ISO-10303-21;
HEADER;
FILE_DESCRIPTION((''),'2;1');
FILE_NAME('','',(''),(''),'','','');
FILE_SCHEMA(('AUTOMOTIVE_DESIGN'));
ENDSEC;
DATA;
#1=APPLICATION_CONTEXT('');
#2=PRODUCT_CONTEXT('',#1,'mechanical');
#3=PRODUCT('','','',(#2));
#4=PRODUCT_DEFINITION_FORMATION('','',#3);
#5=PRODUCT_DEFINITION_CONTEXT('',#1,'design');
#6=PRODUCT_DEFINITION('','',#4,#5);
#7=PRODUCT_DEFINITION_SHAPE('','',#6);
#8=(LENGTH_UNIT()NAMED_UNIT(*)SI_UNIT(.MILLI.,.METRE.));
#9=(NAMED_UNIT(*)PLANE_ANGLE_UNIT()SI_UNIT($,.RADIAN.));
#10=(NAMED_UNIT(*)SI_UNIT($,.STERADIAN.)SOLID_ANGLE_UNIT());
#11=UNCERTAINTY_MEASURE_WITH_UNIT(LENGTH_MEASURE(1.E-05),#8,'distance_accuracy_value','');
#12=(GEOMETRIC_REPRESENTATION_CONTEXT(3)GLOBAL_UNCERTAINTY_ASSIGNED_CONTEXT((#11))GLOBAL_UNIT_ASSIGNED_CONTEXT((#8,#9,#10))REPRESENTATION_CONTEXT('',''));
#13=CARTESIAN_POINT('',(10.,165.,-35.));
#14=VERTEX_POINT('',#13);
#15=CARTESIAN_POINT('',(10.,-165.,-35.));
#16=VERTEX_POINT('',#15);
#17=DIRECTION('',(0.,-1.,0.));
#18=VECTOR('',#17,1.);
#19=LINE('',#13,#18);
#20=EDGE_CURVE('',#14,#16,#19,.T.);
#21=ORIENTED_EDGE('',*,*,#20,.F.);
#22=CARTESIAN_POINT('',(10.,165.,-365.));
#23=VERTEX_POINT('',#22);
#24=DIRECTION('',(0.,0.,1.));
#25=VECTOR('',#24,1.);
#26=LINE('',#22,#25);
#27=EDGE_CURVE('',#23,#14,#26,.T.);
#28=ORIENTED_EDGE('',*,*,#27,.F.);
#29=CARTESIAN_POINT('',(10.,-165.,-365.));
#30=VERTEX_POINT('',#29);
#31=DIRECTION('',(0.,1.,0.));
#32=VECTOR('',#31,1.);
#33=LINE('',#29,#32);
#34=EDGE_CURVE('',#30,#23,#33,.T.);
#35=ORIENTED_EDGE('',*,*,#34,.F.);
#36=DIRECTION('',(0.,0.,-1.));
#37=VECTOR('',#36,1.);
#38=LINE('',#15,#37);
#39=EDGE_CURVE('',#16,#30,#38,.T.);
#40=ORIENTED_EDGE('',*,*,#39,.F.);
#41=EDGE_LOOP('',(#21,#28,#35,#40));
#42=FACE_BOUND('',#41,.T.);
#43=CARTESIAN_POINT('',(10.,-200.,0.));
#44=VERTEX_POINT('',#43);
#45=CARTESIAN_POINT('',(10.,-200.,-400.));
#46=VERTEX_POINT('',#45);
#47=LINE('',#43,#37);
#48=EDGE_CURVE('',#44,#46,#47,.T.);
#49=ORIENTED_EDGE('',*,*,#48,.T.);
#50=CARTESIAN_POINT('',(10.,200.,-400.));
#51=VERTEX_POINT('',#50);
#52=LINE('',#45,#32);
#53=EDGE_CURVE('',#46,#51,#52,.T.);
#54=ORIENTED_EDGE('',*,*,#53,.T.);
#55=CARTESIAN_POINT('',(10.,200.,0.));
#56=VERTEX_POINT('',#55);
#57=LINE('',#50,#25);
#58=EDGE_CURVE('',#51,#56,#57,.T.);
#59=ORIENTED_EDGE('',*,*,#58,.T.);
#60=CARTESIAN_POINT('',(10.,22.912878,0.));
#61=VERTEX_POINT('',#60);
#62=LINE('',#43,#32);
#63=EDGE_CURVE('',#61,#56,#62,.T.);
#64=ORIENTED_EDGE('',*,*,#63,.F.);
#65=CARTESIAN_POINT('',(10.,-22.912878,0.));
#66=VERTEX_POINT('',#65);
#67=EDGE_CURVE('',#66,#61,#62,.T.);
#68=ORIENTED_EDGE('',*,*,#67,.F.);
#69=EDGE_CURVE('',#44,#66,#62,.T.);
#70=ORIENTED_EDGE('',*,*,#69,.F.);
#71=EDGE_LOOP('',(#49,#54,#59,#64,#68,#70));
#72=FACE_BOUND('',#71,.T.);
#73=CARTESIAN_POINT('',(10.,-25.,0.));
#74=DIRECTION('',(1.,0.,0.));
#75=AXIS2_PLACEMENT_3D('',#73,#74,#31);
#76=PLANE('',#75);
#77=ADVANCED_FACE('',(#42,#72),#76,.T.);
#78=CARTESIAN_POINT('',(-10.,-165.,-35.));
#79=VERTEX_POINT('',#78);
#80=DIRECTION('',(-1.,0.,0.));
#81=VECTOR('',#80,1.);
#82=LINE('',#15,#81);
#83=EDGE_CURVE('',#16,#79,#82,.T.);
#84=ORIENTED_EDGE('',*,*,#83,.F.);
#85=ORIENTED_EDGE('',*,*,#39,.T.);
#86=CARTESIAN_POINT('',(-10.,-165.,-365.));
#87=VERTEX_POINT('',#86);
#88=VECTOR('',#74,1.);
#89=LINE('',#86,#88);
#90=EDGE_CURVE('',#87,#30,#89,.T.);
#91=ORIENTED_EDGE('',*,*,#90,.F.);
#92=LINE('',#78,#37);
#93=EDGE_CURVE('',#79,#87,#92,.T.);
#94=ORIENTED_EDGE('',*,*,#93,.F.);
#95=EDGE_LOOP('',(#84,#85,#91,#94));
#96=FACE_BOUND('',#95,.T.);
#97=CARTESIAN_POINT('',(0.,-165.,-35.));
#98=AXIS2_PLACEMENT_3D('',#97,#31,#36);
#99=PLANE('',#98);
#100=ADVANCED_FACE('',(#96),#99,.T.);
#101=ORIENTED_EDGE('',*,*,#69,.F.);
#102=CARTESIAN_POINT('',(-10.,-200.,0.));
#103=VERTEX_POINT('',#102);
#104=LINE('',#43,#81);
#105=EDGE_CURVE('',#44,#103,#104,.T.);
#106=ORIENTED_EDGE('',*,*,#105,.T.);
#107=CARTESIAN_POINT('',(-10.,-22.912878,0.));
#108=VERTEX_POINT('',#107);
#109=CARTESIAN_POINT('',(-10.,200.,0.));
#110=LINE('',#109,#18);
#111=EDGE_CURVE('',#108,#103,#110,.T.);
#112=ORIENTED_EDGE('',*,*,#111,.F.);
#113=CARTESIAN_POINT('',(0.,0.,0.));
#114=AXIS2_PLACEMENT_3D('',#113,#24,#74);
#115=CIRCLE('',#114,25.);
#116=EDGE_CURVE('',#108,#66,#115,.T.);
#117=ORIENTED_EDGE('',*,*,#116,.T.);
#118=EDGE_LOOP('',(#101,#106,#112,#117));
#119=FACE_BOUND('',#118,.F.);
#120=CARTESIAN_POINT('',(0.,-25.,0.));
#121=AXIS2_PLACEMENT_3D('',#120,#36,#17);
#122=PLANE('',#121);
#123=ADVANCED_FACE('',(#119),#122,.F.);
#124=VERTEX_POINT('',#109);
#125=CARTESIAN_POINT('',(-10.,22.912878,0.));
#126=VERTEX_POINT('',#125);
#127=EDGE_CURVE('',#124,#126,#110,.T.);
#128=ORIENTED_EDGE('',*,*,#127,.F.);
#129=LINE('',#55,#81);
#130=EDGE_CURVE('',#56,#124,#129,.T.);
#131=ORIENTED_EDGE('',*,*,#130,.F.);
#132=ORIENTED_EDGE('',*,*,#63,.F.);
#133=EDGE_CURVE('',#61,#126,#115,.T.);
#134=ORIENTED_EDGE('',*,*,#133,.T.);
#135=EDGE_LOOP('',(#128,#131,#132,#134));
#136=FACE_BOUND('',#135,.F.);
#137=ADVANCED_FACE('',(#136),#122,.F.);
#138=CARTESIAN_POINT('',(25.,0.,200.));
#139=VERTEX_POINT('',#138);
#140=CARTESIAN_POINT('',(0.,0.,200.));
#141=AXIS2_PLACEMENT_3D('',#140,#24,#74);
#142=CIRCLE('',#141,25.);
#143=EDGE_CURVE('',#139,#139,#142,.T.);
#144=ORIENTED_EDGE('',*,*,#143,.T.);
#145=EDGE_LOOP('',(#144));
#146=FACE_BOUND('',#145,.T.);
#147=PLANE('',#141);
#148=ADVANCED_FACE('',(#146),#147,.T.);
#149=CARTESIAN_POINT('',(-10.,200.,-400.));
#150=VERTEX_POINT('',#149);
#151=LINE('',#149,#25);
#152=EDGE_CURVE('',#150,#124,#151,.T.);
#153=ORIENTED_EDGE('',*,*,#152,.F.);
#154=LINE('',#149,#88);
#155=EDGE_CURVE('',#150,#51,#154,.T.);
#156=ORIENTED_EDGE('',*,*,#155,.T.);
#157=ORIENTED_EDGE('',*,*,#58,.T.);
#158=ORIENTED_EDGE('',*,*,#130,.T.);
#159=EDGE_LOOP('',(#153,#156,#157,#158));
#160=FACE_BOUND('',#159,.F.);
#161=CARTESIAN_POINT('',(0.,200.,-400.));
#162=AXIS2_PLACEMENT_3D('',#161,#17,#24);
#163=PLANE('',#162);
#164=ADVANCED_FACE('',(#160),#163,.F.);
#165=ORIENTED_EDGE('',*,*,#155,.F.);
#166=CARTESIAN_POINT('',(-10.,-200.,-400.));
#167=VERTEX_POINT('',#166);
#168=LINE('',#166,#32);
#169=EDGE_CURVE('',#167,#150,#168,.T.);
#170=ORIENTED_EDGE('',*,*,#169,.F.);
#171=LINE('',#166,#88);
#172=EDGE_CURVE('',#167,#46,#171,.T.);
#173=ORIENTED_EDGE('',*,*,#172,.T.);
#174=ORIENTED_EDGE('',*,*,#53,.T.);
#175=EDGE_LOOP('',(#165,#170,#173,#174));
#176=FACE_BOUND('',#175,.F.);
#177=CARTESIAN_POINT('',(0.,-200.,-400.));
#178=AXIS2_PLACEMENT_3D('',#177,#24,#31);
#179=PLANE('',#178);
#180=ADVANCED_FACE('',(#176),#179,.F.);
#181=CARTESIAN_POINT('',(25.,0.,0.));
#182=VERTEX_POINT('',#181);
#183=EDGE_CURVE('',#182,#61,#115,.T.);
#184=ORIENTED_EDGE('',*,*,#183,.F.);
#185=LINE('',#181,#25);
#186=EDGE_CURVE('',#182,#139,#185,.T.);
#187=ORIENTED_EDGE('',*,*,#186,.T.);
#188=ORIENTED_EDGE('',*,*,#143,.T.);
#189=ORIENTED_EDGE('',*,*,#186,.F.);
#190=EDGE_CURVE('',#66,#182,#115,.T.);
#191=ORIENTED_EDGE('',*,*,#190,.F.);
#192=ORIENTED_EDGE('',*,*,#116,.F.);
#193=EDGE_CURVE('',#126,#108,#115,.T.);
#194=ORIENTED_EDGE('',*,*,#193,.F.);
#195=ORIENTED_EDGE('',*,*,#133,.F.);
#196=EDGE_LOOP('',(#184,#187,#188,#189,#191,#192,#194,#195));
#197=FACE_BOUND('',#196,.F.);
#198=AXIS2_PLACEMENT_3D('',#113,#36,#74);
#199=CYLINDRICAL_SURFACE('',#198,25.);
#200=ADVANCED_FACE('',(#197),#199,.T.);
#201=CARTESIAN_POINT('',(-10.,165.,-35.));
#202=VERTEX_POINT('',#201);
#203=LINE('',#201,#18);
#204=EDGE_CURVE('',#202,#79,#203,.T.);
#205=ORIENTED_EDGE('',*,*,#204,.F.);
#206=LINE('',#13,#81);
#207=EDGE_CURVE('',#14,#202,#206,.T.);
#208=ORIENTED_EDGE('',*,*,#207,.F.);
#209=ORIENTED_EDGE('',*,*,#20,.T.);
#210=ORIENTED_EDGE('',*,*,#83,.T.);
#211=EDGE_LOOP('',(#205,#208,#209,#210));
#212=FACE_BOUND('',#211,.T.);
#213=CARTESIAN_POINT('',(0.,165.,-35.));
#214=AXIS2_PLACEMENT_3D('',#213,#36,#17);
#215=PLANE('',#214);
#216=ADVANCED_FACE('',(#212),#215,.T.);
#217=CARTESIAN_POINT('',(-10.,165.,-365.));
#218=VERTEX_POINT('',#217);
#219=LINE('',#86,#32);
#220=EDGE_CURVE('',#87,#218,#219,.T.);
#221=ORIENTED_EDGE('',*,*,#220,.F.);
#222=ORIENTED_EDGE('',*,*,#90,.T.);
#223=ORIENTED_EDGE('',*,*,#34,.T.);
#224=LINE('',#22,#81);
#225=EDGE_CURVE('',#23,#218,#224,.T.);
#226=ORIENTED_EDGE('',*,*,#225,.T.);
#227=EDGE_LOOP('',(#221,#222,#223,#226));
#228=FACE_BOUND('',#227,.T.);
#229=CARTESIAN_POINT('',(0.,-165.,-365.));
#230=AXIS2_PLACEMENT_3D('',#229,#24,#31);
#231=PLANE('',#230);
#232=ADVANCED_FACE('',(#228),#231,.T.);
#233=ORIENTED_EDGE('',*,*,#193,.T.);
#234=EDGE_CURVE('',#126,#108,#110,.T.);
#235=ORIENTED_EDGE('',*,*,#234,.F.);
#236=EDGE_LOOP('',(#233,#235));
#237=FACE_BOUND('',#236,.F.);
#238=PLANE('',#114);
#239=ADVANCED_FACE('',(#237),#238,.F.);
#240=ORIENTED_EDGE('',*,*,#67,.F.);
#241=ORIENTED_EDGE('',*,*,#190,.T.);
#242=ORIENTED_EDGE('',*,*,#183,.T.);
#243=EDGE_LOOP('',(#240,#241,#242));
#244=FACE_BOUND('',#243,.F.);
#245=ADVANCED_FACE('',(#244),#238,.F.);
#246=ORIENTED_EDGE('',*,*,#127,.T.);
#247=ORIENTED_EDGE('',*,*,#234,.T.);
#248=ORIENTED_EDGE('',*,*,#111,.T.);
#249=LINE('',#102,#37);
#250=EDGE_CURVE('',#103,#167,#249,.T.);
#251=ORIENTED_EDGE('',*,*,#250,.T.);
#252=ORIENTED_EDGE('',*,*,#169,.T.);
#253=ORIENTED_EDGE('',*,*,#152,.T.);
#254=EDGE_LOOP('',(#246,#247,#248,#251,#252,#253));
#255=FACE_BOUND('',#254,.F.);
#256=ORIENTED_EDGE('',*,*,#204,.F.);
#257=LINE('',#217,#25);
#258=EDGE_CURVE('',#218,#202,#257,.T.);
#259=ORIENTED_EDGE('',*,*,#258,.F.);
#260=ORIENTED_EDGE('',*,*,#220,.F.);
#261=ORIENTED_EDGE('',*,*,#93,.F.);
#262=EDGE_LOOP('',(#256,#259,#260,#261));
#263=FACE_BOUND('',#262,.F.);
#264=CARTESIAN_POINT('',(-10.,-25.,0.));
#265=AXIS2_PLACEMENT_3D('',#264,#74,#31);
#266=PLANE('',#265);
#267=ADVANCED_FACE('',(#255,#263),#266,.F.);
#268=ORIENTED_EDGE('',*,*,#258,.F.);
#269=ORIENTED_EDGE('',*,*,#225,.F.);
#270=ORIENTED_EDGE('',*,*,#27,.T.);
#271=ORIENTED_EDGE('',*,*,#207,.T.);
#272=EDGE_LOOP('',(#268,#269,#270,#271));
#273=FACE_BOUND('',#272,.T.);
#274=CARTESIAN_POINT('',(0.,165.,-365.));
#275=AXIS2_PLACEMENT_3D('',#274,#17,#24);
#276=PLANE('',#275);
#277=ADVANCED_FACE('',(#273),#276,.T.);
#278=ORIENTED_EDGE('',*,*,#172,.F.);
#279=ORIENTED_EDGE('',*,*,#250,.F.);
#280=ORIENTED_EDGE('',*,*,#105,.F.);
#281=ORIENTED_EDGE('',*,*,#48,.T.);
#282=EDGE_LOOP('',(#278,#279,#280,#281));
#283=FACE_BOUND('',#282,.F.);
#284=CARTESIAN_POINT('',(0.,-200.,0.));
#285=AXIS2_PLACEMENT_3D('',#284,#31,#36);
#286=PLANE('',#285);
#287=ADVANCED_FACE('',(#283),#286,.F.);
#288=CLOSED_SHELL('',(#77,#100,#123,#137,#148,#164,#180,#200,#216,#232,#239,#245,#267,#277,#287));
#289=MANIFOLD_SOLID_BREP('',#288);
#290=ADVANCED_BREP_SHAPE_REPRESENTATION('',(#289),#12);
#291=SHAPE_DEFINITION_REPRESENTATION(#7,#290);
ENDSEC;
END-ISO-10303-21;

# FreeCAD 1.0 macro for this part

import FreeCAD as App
import Part
import Sketcher

V = App.Vector
Q = App.Units.Quantity


def add_polygon(sketch, points):
    """Adds a closed chain of lines whose ends are joined by coincident constraints."""
    first, n = sketch.GeometryCount, len(points)
    for a, b in zip(points, points[1:] + points[:1]):
        sketch.addGeometry(Part.LineSegment(App.Vector(*a, 0), App.Vector(*b, 0)), False)
    for i in range(n):
        sketch.addConstraint(Sketcher.Constraint("Coincident", first + i, 2, first + (i + 1) % n, 1))

doc = App.newDocument("Part")
body = doc.addObject("PartDesign::Body", "Body")

# Sketch on XY plane
sketch1 = body.newObject("Sketcher::SketchObject", "Sketch")
sketch1.AttachmentSupport = (doc.getObject("XY_Plane"), [""])
sketch1.MapMode = "FlatFace"
sketch1.addGeometry(Part.Circle(V(0, 0, 0), V(0, 0, 1), 25), False)
sketch1.addConstraint(Sketcher.Constraint("Coincident", 0, 3, -1, 1))
sketch1.addConstraint(Sketcher.Constraint("Diameter", 0, Q("50 mm")))
pad1 = body.newObject("PartDesign::Pad", "Pad")
pad1.Profile = sketch1
pad1.Length = 200

# Sketch on YZ plane
sketch2 = body.newObject("Sketcher::SketchObject", "Sketch001")
sketch2.AttachmentSupport = (doc.getObject("YZ_Plane"), [""])
sketch2.MapMode = "FlatFace"
add_polygon(sketch2, [(-200, 0), (-200, -400), (200, -400), (200, 0)])  # lines 0-3
add_polygon(sketch2, [(165, -365), (-165, -365), (-165, -35), (165, -35)])  # lines 4-7
sketch2.addConstraint(Sketcher.Constraint("Vertical", 0))
sketch2.addConstraint(Sketcher.Constraint("Horizontal", 1))
sketch2.addConstraint(Sketcher.Constraint("Vertical", 2))
sketch2.addConstraint(Sketcher.Constraint("Horizontal", 3))
sketch2.addConstraint(Sketcher.Constraint("Horizontal", 4))
sketch2.addConstraint(Sketcher.Constraint("Vertical", 5))
sketch2.addConstraint(Sketcher.Constraint("Horizontal", 6))
sketch2.addConstraint(Sketcher.Constraint("Vertical", 7))
sketch2.addConstraint(Sketcher.Constraint("Symmetric", 2, 2, 3, 2, -1, 1))
sketch2.addConstraint(Sketcher.Constraint("Equal", 3, 0))
sketch2.addConstraint(Sketcher.Constraint("Equal", 6, 5))
sketch2.addConstraint(Sketcher.Constraint("DistanceX", 1, 1, 1, 2, Q("400 mm")))
sketch2.addConstraint(Sketcher.Constraint("DistanceX", 4, 2, 4, 1, Q("330 mm")))
sketch2.addConstraint(Sketcher.Constraint("DistanceY", 5, 2, -1, 1, Q("35 mm")))
sketch2.addConstraint(Sketcher.Constraint("DistanceX", 0, 2, 4, 2, Q("35 mm")))
pad2 = body.newObject("PartDesign::Pad", "Pad001")
pad2.Profile = sketch2
pad2.Length = 20
pad2.Midplane = True

doc.recompute()
